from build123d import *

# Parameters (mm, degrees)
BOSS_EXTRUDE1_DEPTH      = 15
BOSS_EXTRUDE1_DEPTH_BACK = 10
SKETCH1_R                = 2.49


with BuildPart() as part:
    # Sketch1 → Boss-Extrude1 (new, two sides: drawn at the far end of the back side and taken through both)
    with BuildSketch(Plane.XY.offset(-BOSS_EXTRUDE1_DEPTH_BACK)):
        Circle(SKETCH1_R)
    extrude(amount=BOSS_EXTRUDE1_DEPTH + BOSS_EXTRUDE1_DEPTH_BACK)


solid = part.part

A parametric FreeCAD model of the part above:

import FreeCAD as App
import Part
import Sketcher
from FreeCAD import Vector

doc = App.newDocument("Part")
body = doc.addObject("PartDesign::Body", "Body")

sketch1 = doc.addObject("Sketcher::SketchObject", "Sketch")
body.addObject(sketch1)
sketch1.AttachmentSupport = (doc.XY_Plane, [""])
sketch1.MapMode = "FlatFace"
sketch1.addGeometry(Part.Circle(Vector(0, 0, 0), Vector(0, 0, 1), 2.5), False)
sketch1.addConstraint([
    Sketcher.Constraint("Coincident", 0, 3, -1, 1),
    Sketcher.Constraint("Diameter", 0, 4.98),
])
pad1 = doc.addObject("PartDesign::Pad", "Pad")
body.addObject(pad1)
pad1.Profile = sketch1
pad1.Type = "TwoLengths"
pad1.Length = 15
pad1.Length2 = 10

doc.recompute()
